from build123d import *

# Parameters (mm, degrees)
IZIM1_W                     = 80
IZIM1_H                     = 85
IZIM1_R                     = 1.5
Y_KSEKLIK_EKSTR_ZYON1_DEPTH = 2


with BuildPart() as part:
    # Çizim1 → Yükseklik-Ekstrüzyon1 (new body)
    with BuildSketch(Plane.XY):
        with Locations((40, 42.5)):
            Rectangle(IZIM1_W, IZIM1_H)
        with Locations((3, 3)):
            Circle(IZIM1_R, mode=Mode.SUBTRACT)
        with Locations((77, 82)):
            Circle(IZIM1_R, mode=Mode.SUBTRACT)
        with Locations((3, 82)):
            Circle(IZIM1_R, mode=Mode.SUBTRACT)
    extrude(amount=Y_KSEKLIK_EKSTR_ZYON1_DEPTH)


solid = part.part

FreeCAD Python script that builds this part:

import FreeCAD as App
import Part
import Sketcher

V = App.Vector
Q = App.Units.Quantity

doc = App.newDocument("Part")
body = doc.addObject("PartDesign::Body", "Body")

sketch1 = body.newObject("Sketcher::SketchObject", "Sketch")
sketch1.AttachmentSupport = (doc.getObject("XY_Plane"), [""])
sketch1.MapMode = "FlatFace"
sketch1.addGeometry([
    Part.LineSegment(V(0, 85, 0), V(0, 0, 0)),
    Part.LineSegment(V(0, 0, 0), V(80, 0, 0)),
    Part.LineSegment(V(80, 0, 0), V(80, 85, 0)),
    Part.LineSegment(V(80, 85, 0), V(0, 85, 0)),
    Part.Circle(V(3, 3, 0), V(0, 0, 1), 1.5),
    Part.Circle(V(3, 82, 0), V(0, 0, 1), 1.5),
    Part.Circle(V(77, 82, 0), V(0, 0, 1), 1.5),
], False)
sketch1.addConstraint([
    Sketcher.Constraint("Coincident", 0, 2, 1, 1),
    Sketcher.Constraint("Coincident", 1, 2, 2, 1),
    Sketcher.Constraint("Coincident", 2, 2, 3, 1),
    Sketcher.Constraint("Coincident", 3, 2, 0, 1),
    Sketcher.Constraint("Vertical", 0),
    Sketcher.Constraint("Horizontal", 1),
    Sketcher.Constraint("Vertical", 2),
    Sketcher.Constraint("Horizontal", 3),
    Sketcher.Constraint("Coincident", 0, 2, -1, 1),
    Sketcher.Constraint("Equal", 4, 5),
    Sketcher.Constraint("Equal", 5, 6),
    Sketcher.Constraint("Horizontal", 5, 3, 6, 3),
    Sketcher.Constraint("Vertical", 4, 3, 5, 3),
    Sketcher.Constraint("Diameter", 4, Q("3 mm")),
    Sketcher.Constraint("DistanceX", 1, 1, 1, 2, Q("80 mm")),
    Sketcher.Constraint("DistanceY", 0, 2, 0, 1, Q("85 mm")),
    Sketcher.Constraint("DistanceX", -1, 1, 4, 3, Q("3 mm")),
    Sketcher.Constraint("DistanceY", -1, 1, 4, 3, Q("3 mm")),
    Sketcher.Constraint("DistanceY", -1, 1, 5, 3, Q("82 mm")),
    Sketcher.Constraint("DistanceX", -1, 1, 6, 3, Q("77 mm")),
])
pad1 = body.newObject("PartDesign::Pad", "Pad")
pad1.Profile = sketch1
pad1.Length = 2

doc.recompute()
